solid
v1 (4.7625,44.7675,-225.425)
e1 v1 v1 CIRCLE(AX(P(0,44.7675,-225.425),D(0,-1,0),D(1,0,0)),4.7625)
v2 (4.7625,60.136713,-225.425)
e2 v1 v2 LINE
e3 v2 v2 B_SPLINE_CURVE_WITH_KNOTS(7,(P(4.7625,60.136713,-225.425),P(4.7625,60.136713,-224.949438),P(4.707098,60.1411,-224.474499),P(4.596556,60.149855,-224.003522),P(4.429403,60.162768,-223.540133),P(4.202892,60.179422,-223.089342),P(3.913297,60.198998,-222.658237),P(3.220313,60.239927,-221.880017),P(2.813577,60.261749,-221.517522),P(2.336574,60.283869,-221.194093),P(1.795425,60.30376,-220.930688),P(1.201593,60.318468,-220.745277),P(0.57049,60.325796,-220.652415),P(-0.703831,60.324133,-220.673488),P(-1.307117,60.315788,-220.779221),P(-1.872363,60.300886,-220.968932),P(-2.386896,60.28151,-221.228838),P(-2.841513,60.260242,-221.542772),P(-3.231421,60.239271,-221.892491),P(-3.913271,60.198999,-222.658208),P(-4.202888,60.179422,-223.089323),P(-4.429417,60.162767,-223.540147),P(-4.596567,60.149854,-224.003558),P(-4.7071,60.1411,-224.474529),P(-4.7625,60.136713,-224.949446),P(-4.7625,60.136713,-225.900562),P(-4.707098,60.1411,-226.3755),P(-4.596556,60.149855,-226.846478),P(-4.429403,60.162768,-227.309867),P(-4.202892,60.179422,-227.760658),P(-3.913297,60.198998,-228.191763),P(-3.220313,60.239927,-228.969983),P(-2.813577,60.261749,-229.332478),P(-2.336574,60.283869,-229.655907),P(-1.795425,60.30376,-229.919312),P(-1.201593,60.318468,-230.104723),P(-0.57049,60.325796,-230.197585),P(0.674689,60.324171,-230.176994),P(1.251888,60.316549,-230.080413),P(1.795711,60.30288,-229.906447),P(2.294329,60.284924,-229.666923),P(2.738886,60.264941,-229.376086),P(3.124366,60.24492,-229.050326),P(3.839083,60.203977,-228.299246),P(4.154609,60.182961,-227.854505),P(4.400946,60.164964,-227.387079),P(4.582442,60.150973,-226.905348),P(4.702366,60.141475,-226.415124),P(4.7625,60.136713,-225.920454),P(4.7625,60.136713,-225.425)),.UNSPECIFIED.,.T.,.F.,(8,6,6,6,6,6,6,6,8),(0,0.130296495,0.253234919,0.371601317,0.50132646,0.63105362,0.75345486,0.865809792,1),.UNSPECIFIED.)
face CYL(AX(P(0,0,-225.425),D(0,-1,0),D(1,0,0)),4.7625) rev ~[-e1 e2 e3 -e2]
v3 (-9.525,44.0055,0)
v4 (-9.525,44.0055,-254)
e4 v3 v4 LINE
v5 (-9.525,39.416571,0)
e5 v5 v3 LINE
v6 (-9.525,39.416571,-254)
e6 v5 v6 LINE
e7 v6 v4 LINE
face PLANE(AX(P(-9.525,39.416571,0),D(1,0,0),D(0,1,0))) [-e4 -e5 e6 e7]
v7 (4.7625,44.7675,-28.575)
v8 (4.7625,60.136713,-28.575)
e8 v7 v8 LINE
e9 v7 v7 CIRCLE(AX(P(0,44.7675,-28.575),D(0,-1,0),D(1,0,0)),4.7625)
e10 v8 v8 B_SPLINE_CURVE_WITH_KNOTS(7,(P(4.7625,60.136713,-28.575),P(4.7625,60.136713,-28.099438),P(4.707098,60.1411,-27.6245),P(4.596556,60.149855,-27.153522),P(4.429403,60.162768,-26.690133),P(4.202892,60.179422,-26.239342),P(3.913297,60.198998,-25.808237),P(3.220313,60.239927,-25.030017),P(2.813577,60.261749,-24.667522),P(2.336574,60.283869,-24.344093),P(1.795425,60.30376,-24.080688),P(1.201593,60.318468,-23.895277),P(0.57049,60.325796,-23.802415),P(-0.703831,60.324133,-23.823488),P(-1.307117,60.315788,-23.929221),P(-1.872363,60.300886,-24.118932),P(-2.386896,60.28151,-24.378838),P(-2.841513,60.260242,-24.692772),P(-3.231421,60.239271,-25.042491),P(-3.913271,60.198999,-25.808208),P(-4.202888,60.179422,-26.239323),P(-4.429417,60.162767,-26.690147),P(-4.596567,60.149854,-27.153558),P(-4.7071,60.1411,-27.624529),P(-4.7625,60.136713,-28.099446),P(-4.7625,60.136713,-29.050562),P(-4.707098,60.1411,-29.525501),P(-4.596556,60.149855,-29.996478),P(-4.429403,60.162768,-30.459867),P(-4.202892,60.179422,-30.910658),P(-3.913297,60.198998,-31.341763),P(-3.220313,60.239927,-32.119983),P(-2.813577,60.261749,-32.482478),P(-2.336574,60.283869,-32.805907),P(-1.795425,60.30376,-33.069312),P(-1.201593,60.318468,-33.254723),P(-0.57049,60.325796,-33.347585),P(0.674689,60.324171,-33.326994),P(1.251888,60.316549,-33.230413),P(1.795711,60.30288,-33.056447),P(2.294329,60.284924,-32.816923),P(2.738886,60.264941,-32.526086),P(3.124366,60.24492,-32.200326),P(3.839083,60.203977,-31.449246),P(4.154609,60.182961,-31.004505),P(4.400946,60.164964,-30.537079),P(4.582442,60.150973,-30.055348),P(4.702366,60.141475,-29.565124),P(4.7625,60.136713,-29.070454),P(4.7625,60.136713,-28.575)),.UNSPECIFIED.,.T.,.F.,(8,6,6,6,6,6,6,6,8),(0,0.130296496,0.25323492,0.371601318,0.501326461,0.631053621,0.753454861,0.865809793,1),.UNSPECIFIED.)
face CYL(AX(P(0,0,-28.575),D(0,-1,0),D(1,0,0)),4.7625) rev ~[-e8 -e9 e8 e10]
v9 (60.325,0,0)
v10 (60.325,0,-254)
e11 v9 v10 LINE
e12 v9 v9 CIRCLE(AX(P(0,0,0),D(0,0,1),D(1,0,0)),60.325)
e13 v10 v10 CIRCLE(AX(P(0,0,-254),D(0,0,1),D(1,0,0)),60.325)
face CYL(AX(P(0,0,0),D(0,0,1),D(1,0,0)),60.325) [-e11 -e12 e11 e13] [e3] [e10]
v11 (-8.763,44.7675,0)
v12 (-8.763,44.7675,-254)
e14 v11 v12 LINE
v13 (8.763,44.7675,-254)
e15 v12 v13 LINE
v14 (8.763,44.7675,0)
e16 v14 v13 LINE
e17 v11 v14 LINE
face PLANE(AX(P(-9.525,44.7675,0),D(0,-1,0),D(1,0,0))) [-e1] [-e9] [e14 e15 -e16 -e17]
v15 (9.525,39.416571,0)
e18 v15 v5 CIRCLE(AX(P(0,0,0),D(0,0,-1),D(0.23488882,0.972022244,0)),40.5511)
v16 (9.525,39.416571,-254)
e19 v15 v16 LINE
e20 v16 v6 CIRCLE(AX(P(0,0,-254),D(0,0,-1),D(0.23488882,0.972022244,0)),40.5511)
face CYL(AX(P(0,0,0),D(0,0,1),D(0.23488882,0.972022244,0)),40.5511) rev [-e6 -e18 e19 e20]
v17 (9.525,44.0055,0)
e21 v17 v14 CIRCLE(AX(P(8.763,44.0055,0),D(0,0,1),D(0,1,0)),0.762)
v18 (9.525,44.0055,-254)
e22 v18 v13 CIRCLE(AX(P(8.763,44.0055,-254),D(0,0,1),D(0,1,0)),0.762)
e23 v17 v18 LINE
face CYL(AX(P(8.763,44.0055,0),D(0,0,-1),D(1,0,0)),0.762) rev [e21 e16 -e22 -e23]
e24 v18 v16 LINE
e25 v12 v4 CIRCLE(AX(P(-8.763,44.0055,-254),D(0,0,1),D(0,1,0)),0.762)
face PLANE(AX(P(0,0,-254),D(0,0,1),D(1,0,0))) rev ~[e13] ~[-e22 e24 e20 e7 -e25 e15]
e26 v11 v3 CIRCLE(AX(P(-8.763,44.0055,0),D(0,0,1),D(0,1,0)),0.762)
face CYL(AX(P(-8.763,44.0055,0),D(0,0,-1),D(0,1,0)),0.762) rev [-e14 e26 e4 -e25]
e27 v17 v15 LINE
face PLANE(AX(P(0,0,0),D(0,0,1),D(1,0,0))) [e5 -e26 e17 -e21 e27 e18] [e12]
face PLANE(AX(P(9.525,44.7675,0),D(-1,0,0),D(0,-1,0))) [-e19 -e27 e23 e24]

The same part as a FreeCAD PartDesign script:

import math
import FreeCAD as App
import Part
import Sketcher

V = App.Vector
Q = App.Units.Quantity


def edges_at(feature, points):
    """Names of the edges that pass closest to the given points."""
    edges = feature.Shape.Edges
    near = lambda p: min(range(len(edges)), key=lambda i: edges[i].distToShape(Part.Vertex(*p))[0])
    return sorted({f"Edge{near(p) + 1}" for p in points})

doc = App.newDocument("Part")
body = doc.addObject("PartDesign::Body", "Body")

# Sketch on XY plane
sketch1 = body.newObject("Sketcher::SketchObject", "Sketch")
sketch1.AttachmentSupport = (doc.getObject("XY_Plane"), [""])
sketch1.MapMode = "FlatFace"
sketch1.addGeometry([
    Part.Circle(V(0, 0, 0), V(0, 0, 1), 60.325),  # 0
    Part.LineSegment(V(9.525, 44.7675, 0), V(9.525, 39.416571, 0)),  # 1
    Part.ArcOfCircle(Part.Circle(V(0, 0, 0), V(0, 0, 1), 40.5511), math.radians(103.585069), math.radians(436.414931)),  # 2
    Part.LineSegment(V(-9.525, 39.416571, 0), V(-9.525, 44.7675, 0)),  # 3
    Part.LineSegment(V(-9.525, 44.7675, 0), V(9.525, 44.7675, 0)),  # 4
], False)
sketch1.addConstraint([
    Sketcher.Constraint("Coincident", 1, 2, 2, 2),
    Sketcher.Constraint("Coincident", 2, 1, 3, 1),
    Sketcher.Constraint("Coincident", 3, 2, 4, 1),
    Sketcher.Constraint("Coincident", 4, 2, 1, 1),
    Sketcher.Constraint("Vertical", 1),
    Sketcher.Constraint("Vertical", 3),
    Sketcher.Constraint("Horizontal", 4),
    Sketcher.Constraint("Coincident", 0, 3, -1, 1),
    Sketcher.Constraint("Coincident", 2, 3, -1, 1),
    Sketcher.Constraint("Horizontal", 1, 2, 2, 1),
    Sketcher.Constraint("Diameter", 0, Q("4.75 in")),
    Sketcher.Constraint("DistanceX", 4, 1, 4, 2, Q("0.75 in")),
    Sketcher.Constraint("Radius", 2, Q("1.5965 in")),
    Sketcher.Constraint("DistanceY", -1, 1, 3, 2, Q("1.7625 in")),
])
pad1 = body.newObject("PartDesign::Pad", "Pad")
pad1.Profile = sketch1
pad1.Length = Q("10 in")
pad1.Reversed = True

# Sketch on XZ plane
sketch2 = body.newObject("Sketcher::SketchObject", "Sketch001")
sketch2.AttachmentSupport = (doc.getObject("XZ_Plane"), [""])
sketch2.MapMode = "FlatFace"
sketch2.addGeometry([
    Part.Circle(V(0, -28.575, 0), V(0, 0, 1), 4.7625),
    Part.Circle(V(0, -225.425, 0), V(0, 0, 1), 4.7625),
], False)
sketch2.addConstraint([
    Sketcher.Constraint("Equal", 0, 1),
    Sketcher.Constraint("PointOnObject", 0, 3, -2),
    Sketcher.Constraint("PointOnObject", 1, 3, -2),
    Sketcher.Constraint("Diameter", 0, Q("0.375 in")),
    Sketcher.Constraint("DistanceY", 1, 3, 0, 3, Q("7.75 in")),
    Sketcher.Constraint("DistanceY", 0, 3, -1, 1, Q("1.125 in")),
])
pocket1 = body.newObject("PartDesign::Pocket", "Pocket")
pocket1.Profile = sketch2
pocket1.Type = "ThroughAll"
doc.recompute()

fillet = body.newObject("PartDesign::Fillet", "Fillet")
fillet.Base = (pocket1, edges_at(pocket1, [(-9.525, 44.767, -127), (9.525, 44.767, -127)]))
fillet.Radius = Q("0.03 in")

doc.recompute()
